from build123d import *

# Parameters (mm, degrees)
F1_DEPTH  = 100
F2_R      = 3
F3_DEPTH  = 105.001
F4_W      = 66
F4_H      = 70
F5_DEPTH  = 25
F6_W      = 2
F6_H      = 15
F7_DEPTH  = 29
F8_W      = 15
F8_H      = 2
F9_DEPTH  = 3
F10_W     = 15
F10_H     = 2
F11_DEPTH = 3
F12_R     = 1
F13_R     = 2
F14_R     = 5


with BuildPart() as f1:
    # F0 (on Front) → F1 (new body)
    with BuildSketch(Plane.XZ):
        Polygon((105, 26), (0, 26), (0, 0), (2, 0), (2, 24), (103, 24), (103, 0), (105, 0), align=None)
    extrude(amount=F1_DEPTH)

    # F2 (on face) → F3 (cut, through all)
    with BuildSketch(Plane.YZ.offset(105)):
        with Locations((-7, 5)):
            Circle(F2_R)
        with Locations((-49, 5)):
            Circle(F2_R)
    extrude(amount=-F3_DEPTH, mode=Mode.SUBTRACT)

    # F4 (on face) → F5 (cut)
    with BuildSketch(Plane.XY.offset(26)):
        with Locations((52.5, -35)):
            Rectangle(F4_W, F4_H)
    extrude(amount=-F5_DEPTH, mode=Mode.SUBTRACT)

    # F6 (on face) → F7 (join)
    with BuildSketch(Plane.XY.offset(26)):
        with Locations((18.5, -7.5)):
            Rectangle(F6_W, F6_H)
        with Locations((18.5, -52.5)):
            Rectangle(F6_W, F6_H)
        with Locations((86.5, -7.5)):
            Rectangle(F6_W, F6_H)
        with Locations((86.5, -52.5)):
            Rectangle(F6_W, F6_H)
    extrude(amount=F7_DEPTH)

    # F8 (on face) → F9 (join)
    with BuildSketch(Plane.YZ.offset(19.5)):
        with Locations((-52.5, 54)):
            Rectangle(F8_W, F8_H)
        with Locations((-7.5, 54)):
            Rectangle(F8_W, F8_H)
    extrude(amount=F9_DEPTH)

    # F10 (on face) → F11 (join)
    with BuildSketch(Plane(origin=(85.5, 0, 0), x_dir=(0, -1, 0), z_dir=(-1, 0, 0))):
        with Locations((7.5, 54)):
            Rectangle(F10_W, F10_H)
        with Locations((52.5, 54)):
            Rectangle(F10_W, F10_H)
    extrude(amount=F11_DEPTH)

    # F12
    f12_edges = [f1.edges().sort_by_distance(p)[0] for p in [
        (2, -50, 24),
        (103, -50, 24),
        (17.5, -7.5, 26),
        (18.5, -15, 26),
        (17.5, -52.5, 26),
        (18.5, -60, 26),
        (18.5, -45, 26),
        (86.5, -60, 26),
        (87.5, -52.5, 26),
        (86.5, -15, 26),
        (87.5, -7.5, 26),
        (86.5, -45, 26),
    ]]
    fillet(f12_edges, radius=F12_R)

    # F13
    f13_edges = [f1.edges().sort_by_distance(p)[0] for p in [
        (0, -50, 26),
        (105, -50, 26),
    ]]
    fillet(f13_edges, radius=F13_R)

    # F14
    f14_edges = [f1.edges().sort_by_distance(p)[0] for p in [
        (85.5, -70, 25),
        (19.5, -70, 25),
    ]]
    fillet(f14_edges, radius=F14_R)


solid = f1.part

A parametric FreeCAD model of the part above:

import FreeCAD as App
import Part
import Sketcher

V = App.Vector


def edges_at(feature, points):
    """Names of the edges that pass closest to the given points."""
    edges = feature.Shape.Edges
    near = lambda p: min(range(len(edges)), key=lambda i: edges[i].distToShape(Part.Vertex(*p))[0])
    return sorted({f"Edge{near(p) + 1}" for p in points})

doc = App.newDocument("Part")
body = doc.addObject("PartDesign::Body", "Body")

sketch1 = body.newObject("Sketcher::SketchObject", "Sketch")
sketch1.AttachmentSupport = (doc.getObject("XZ_Plane"), [""])
sketch1.MapMode = "FlatFace"
sketch1.addGeometry(Part.LineSegment(V(105, 26, 0), V(0, 26, 0)), False)
sketch1.addGeometry(Part.LineSegment(V(0, 26, 0), V(0, 0, 0)), False)
sketch1.addGeometry(Part.LineSegment(V(0, 0, 0), V(2, 0, 0)), False)
sketch1.addGeometry(Part.LineSegment(V(2, 0, 0), V(2, 24, 0)), False)
sketch1.addGeometry(Part.LineSegment(V(2, 24, 0), V(103, 24, 0)), False)
sketch1.addGeometry(Part.LineSegment(V(103, 24, 0), V(103, 0, 0)), False)
sketch1.addGeometry(Part.LineSegment(V(103, 0, 0), V(105, 0, 0)), False)
sketch1.addGeometry(Part.LineSegment(V(105, 0, 0), V(105, 26, 0)), False)
sketch1.addConstraint(Sketcher.Constraint("Coincident", 0, 2, 1, 1))
sketch1.addConstraint(Sketcher.Constraint("Coincident", 1, 2, 2, 1))
sketch1.addConstraint(Sketcher.Constraint("Coincident", 2, 2, 3, 1))
sketch1.addConstraint(Sketcher.Constraint("Coincident", 3, 2, 4, 1))
sketch1.addConstraint(Sketcher.Constraint("Coincident", 4, 2, 5, 1))
sketch1.addConstraint(Sketcher.Constraint("Coincident", 5, 2, 6, 1))
sketch1.addConstraint(Sketcher.Constraint("Coincident", 6, 2, 7, 1))
sketch1.addConstraint(Sketcher.Constraint("Coincident", 7, 2, 0, 1))
sketch1.addConstraint(Sketcher.Constraint("Horizontal", 0))
sketch1.addConstraint(Sketcher.Constraint("Vertical", 1))
sketch1.addConstraint(Sketcher.Constraint("Horizontal", 2))
sketch1.addConstraint(Sketcher.Constraint("Vertical", 3))
sketch1.addConstraint(Sketcher.Constraint("Horizontal", 4))
sketch1.addConstraint(Sketcher.Constraint("Vertical", 5))
sketch1.addConstraint(Sketcher.Constraint("Horizontal", 6))
sketch1.addConstraint(Sketcher.Constraint("Vertical", 7))
sketch1.addConstraint(Sketcher.Constraint("Coincident", 1, 2, -1, 1))
sketch1.addConstraint(Sketcher.Constraint("PointOnObject", 5, 2, -1))
sketch1.addConstraint(Sketcher.Constraint("Equal", 2, 6))
sketch1.addConstraint(Sketcher.Constraint("DistanceX", 0, 2, 0, 1, 105.0))
sketch1.addConstraint(Sketcher.Constraint("DistanceX", 2, 1, 2, 2, 2.0))
sketch1.addConstraint(Sketcher.Constraint("DistanceY", 1, 2, 1, 1, 26.0))
sketch1.addConstraint(Sketcher.Constraint("DistanceY", 3, 1, 3, 2, 24.0))
pad1 = body.newObject("PartDesign::Pad", "Pad")
pad1.Profile = sketch1
pad1.Length = 100

sketch2 = body.newObject("Sketcher::SketchObject", "Sketch001")
sketch2.AttachmentSupport = (doc.getObject("YZ_Plane"), [""])
sketch2.MapMode = "FlatFace"
sketch2.AttachmentOffset = App.Placement(V(0, 0, 105), App.Rotation())
sketch2.addGeometry(Part.Circle(V(-7, 5, 0), V(0, 0, 1), 3), False)
sketch2.addGeometry(Part.Circle(V(-49, 5, 0), V(0, 0, 1), 3), False)
sketch2.addConstraint(Sketcher.Constraint("Equal", 0, 1))
sketch2.addConstraint(Sketcher.Constraint("Horizontal", 0, 3, 1, 3))
sketch2.addConstraint(Sketcher.Constraint("Diameter", 0, 6.0))
sketch2.addConstraint(Sketcher.Constraint("DistanceX", 0, 3, -1, 1, 7.0))
sketch2.addConstraint(Sketcher.Constraint("DistanceY", -1, 1, 0, 3, 5.0))
sketch2.addConstraint(Sketcher.Constraint("DistanceX", 1, 3, -1, 1, 49.0))
pocket1 = body.newObject("PartDesign::Pocket", "Pocket")
pocket1.Profile = sketch2
pocket1.Type = "ThroughAll"

sketch3 = body.newObject("Sketcher::SketchObject", "Sketch002")
sketch3.AttachmentSupport = (doc.getObject("XY_Plane"), [""])
sketch3.MapMode = "FlatFace"
sketch3.AttachmentOffset = App.Placement(V(0, 0, 26), App.Rotation())
sketch3.addGeometry(Part.LineSegment(V(20, 0, 0), V(20, -70, 0)), False)
sketch3.addGeometry(Part.LineSegment(V(20, -70, 0), V(86, -70, 0)), False)
sketch3.addGeometry(Part.LineSegment(V(86, -70, 0), V(86, 0, 0)), False)
sketch3.addGeometry(Part.LineSegment(V(86, 0, 0), V(20, 0, 0)), False)
sketch3.addConstraint(Sketcher.Constraint("Coincident", 0, 2, 1, 1))
sketch3.addConstraint(Sketcher.Constraint("Coincident", 1, 2, 2, 1))
sketch3.addConstraint(Sketcher.Constraint("Coincident", 2, 2, 3, 1))
sketch3.addConstraint(Sketcher.Constraint("Coincident", 3, 2, 0, 1))
sketch3.addConstraint(Sketcher.Constraint("Vertical", 0))
sketch3.addConstraint(Sketcher.Constraint("Horizontal", 1))
sketch3.addConstraint(Sketcher.Constraint("Vertical", 2))
sketch3.addConstraint(Sketcher.Constraint("Horizontal", 3))
sketch3.addConstraint(Sketcher.Constraint("PointOnObject", 2, 2, -1))
sketch3.addConstraint(Sketcher.Constraint("DistanceX", 1, 1, 1, 2, 66.0))
sketch3.addConstraint(Sketcher.Constraint("DistanceY", 0, 2, 0, 1, 70.0))
sketch3.addConstraint(Sketcher.Constraint("DistanceX", -1, 1, 0, 2, 19.5))
pocket2 = body.newObject("PartDesign::Pocket", "Pocket001")
pocket2.Profile = sketch3
pocket2.Length = 25

sketch4 = body.newObject("Sketcher::SketchObject", "Sketch003")
sketch4.AttachmentSupport = (doc.getObject("XY_Plane"), [""])
sketch4.MapMode = "FlatFace"
sketch4.AttachmentOffset = App.Placement(V(0, 0, 26), App.Rotation())
sketch4.addGeometry(Part.LineSegment(V(17.5, 0, 0), V(17.5, -15, 0)), False)
sketch4.addGeometry(Part.LineSegment(V(17.5, -15, 0), V(19.5, -15, 0)), False)
sketch4.addGeometry(Part.LineSegment(V(19.5, -15, 0), V(19.5, 0, 0)), False)
sketch4.addGeometry(Part.LineSegment(V(19.5, 0, 0), V(17.5, 0, 0)), False)
sketch4.addGeometry(Part.LineSegment(V(17.5, -45, 0), V(17.5, -60, 0)), False)
sketch4.addGeometry(Part.LineSegment(V(17.5, -60, 0), V(19.5, -60, 0)), False)
sketch4.addGeometry(Part.LineSegment(V(19.5, -60, 0), V(19.5, -45, 0)), False)
sketch4.addGeometry(Part.LineSegment(V(19.5, -45, 0), V(17.5, -45, 0)), False)
sketch4.addGeometry(Part.LineSegment(V(85.5, 0, 0), V(85.5, -15, 0)), False)
sketch4.addGeometry(Part.LineSegment(V(85.5, -15, 0), V(87.5, -15, 0)), False)
sketch4.addGeometry(Part.LineSegment(V(87.5, -15, 0), V(87.5, 0, 0)), False)
sketch4.addGeometry(Part.LineSegment(V(87.5, 0, 0), V(85.5, 0, 0)), False)
sketch4.addGeometry(Part.LineSegment(V(85.5, -45, 0), V(85.5, -60, 0)), False)
sketch4.addGeometry(Part.LineSegment(V(85.5, -60, 0), V(87.5, -60, 0)), False)
sketch4.addGeometry(Part.LineSegment(V(87.5, -60, 0), V(87.5, -45, 0)), False)
sketch4.addGeometry(Part.LineSegment(V(87.5, -45, 0), V(85.5, -45, 0)), False)
sketch4.addConstraint(Sketcher.Constraint("Coincident", 0, 2, 1, 1))
sketch4.addConstraint(Sketcher.Constraint("Coincident", 1, 2, 2, 1))
sketch4.addConstraint(Sketcher.Constraint("Coincident", 2, 2, 3, 1))
sketch4.addConstraint(Sketcher.Constraint("Coincident", 3, 2, 0, 1))
sketch4.addConstraint(Sketcher.Constraint("Coincident", 4, 2, 5, 1))
sketch4.addConstraint(Sketcher.Constraint("Coincident", 5, 2, 6, 1))
sketch4.addConstraint(Sketcher.Constraint("Coincident", 6, 2, 7, 1))
sketch4.addConstraint(Sketcher.Constraint("Coincident", 7, 2, 4, 1))
sketch4.addConstraint(Sketcher.Constraint("Coincident", 8, 2, 9, 1))
sketch4.addConstraint(Sketcher.Constraint("Coincident", 9, 2, 10, 1))
sketch4.addConstraint(Sketcher.Constraint("Coincident", 10, 2, 11, 1))
sketch4.addConstraint(Sketcher.Constraint("Coincident", 11, 2, 8, 1))
sketch4.addConstraint(Sketcher.Constraint("Coincident", 12, 2, 13, 1))
sketch4.addConstraint(Sketcher.Constraint("Coincident", 13, 2, 14, 1))
sketch4.addConstraint(Sketcher.Constraint("Coincident", 14, 2, 15, 1))
sketch4.addConstraint(Sketcher.Constraint("Coincident", 15, 2, 12, 1))
sketch4.addConstraint(Sketcher.Constraint("Vertical", 0))
sketch4.addConstraint(Sketcher.Constraint("Horizontal", 1))
sketch4.addConstraint(Sketcher.Constraint("Vertical", 2))
sketch4.addConstraint(Sketcher.Constraint("Horizontal", 3))
sketch4.addConstraint(Sketcher.Constraint("Vertical", 4))
sketch4.addConstraint(Sketcher.Constraint("Horizontal", 5))
sketch4.addConstraint(Sketcher.Constraint("Vertical", 6))
sketch4.addConstraint(Sketcher.Constraint("Horizontal", 7))
sketch4.addConstraint(Sketcher.Constraint("Vertical", 8))
sketch4.addConstraint(Sketcher.Constraint("Horizontal", 9))
sketch4.addConstraint(Sketcher.Constraint("Vertical", 10))
sketch4.addConstraint(Sketcher.Constraint("Horizontal", 11))
sketch4.addConstraint(Sketcher.Constraint("Vertical", 12))
sketch4.addConstraint(Sketcher.Constraint("Horizontal", 13))
sketch4.addConstraint(Sketcher.Constraint("Vertical", 14))
sketch4.addConstraint(Sketcher.Constraint("Horizontal", 15))
sketch4.addConstraint(Sketcher.Constraint("PointOnObject", 2, 2, -1))
sketch4.addConstraint(Sketcher.Constraint("PointOnObject", 10, 2, -1))
sketch4.addConstraint(Sketcher.Constraint("Horizontal", 1, 2, 8, 2))
sketch4.addConstraint(Sketcher.Constraint("Horizontal", 5, 2, 12, 2))
sketch4.addConstraint(Sketcher.Constraint("Horizontal", 7, 2, 14, 2))
sketch4.addConstraint(Sketcher.Constraint("Vertical", 3, 2, 4, 2))
sketch4.addConstraint(Sketcher.Constraint("Vertical", 2, 2, 5, 2))
sketch4.addConstraint(Sketcher.Constraint("Vertical", 11, 2, 12, 2))
sketch4.addConstraint(Sketcher.Constraint("Vertical", 10, 2, 13, 2))
sketch4.addConstraint(Sketcher.Constraint("Equal", 7, 9))
sketch4.addConstraint(Sketcher.Constraint("Equal", 2, 4))
sketch4.addConstraint(Sketcher.Constraint("DistanceX", 1, 1, 1, 2, 2.0))
sketch4.addConstraint(Sketcher.Constraint("DistanceY", 0, 2, 0, 1, 15.0))
sketch4.addConstraint(Sketcher.Constraint("DistanceY", 4, 2, -1, 1, 60.0))
sketch4.addConstraint(Sketcher.Constraint("DistanceX", 1, 2, 8, 2, 66.0))
sketch4.addConstraint(Sketcher.Constraint("DistanceX", -1, 1, 0, 2, 17.5))
pad2 = body.newObject("PartDesign::Pad", "Pad001")
pad2.Profile = sketch4
pad2.Length = 29

sketch5 = body.newObject("Sketcher::SketchObject", "Sketch004")
sketch5.AttachmentSupport = (doc.getObject("YZ_Plane"), [""])
sketch5.MapMode = "FlatFace"
sketch5.AttachmentOffset = App.Placement(V(0, 0, 19.5), App.Rotation())
sketch5.addGeometry(Part.LineSegment(V(-60, 55, 0), V(-60, 53, 0)), False)
sketch5.addGeometry(Part.LineSegment(V(-60, 53, 0), V(-45, 53, 0)), False)
sketch5.addGeometry(Part.LineSegment(V(-45, 53, 0), V(-45, 55, 0)), False)
sketch5.addGeometry(Part.LineSegment(V(-45, 55, 0), V(-60, 55, 0)), False)
sketch5.addGeometry(Part.LineSegment(V(-15, 55, 0), V(-15, 53, 0)), False)
sketch5.addGeometry(Part.LineSegment(V(-15, 53, 0), V(0, 53, 0)), False)
sketch5.addGeometry(Part.LineSegment(V(0, 53, 0), V(0, 55, 0)), False)
sketch5.addGeometry(Part.LineSegment(V(0, 55, 0), V(-15, 55, 0)), False)
sketch5.addConstraint(Sketcher.Constraint("Coincident", 0, 2, 1, 1))
sketch5.addConstraint(Sketcher.Constraint("Coincident", 1, 2, 2, 1))
sketch5.addConstraint(Sketcher.Constraint("Coincident", 2, 2, 3, 1))
sketch5.addConstraint(Sketcher.Constraint("Coincident", 3, 2, 0, 1))
sketch5.addConstraint(Sketcher.Constraint("Coincident", 4, 2, 5, 1))
sketch5.addConstraint(Sketcher.Constraint("Coincident", 5, 2, 6, 1))
sketch5.addConstraint(Sketcher.Constraint("Coincident", 6, 2, 7, 1))
sketch5.addConstraint(Sketcher.Constraint("Coincident", 7, 2, 4, 1))
sketch5.addConstraint(Sketcher.Constraint("Vertical", 0))
sketch5.addConstraint(Sketcher.Constraint("Horizontal", 1))
sketch5.addConstraint(Sketcher.Constraint("Vertical", 2))
sketch5.addConstraint(Sketcher.Constraint("Horizontal", 3))
sketch5.addConstraint(Sketcher.Constraint("Vertical", 4))
sketch5.addConstraint(Sketcher.Constraint("Horizontal", 5))
sketch5.addConstraint(Sketcher.Constraint("Vertical", 6))
sketch5.addConstraint(Sketcher.Constraint("Horizontal", 7))
sketch5.addConstraint(Sketcher.Constraint("PointOnObject", 5, 2, -2))
sketch5.addConstraint(Sketcher.Constraint("Horizontal", 1, 2, 4, 2))
sketch5.addConstraint(Sketcher.Constraint("Horizontal", 3, 2, 6, 2))
sketch5.addConstraint(Sketcher.Constraint("Equal", 3, 5))
sketch5.addConstraint(Sketcher.Constraint("DistanceX", 1, 1, 1, 2, 15.0))
sketch5.addConstraint(Sketcher.Constraint("DistanceY", 0, 2, 0, 1, 2.0))
sketch5.addConstraint(Sketcher.Constraint("DistanceX", 0, 2, -1, 1, 60.0))
sketch5.addConstraint(Sketcher.Constraint("DistanceY", -1, 1, 0, 2, 53.0))
pad3 = body.newObject("PartDesign::Pad", "Pad002")
pad3.Profile = sketch5
pad3.Length = 3

sketch6 = body.newObject("Sketcher::SketchObject", "Sketch005")
sketch6.AttachmentSupport = (doc.getObject("YZ_Plane"), [""])
sketch6.MapMode = "FlatFace"
sketch6.AttachmentOffset = App.Placement(V(0, 0, 85.5), App.Rotation())
sketch6.addGeometry(Part.LineSegment(V(0, 55, 0), V(0, 53, 0)), False)
sketch6.addGeometry(Part.LineSegment(V(0, 53, 0), V(-15, 53, 0)), False)
sketch6.addGeometry(Part.LineSegment(V(-15, 53, 0), V(-15, 55, 0)), False)
sketch6.addGeometry(Part.LineSegment(V(-15, 55, 0), V(0, 55, 0)), False)
sketch6.addGeometry(Part.LineSegment(V(-45, 55, 0), V(-45, 53, 0)), False)
sketch6.addGeometry(Part.LineSegment(V(-45, 53, 0), V(-60, 53, 0)), False)
sketch6.addGeometry(Part.LineSegment(V(-60, 53, 0), V(-60, 55, 0)), False)
sketch6.addGeometry(Part.LineSegment(V(-60, 55, 0), V(-45, 55, 0)), False)
sketch6.addConstraint(Sketcher.Constraint("Coincident", 0, 2, 1, 1))
sketch6.addConstraint(Sketcher.Constraint("Coincident", 1, 2, 2, 1))
sketch6.addConstraint(Sketcher.Constraint("Coincident", 2, 2, 3, 1))
sketch6.addConstraint(Sketcher.Constraint("Coincident", 3, 2, 0, 1))
sketch6.addConstraint(Sketcher.Constraint("Coincident", 4, 2, 5, 1))
sketch6.addConstraint(Sketcher.Constraint("Coincident", 5, 2, 6, 1))
sketch6.addConstraint(Sketcher.Constraint("Coincident", 6, 2, 7, 1))
sketch6.addConstraint(Sketcher.Constraint("Coincident", 7, 2, 4, 1))
sketch6.addConstraint(Sketcher.Constraint("Vertical", 0))
sketch6.addConstraint(Sketcher.Constraint("Horizontal", 1))
sketch6.addConstraint(Sketcher.Constraint("Vertical", 2))
sketch6.addConstraint(Sketcher.Constraint("Horizontal", 3))
sketch6.addConstraint(Sketcher.Constraint("Vertical", 4))
sketch6.addConstraint(Sketcher.Constraint("Horizontal", 5))
sketch6.addConstraint(Sketcher.Constraint("Vertical", 6))
sketch6.addConstraint(Sketcher.Constraint("Horizontal", 7))
sketch6.addConstraint(Sketcher.Constraint("PointOnObject", 0, 2, -2))
sketch6.addConstraint(Sketcher.Constraint("Horizontal", 1, 2, 4, 2))
sketch6.addConstraint(Sketcher.Constraint("Horizontal", 3, 2, 6, 2))
sketch6.addConstraint(Sketcher.Constraint("Equal", 3, 5))
sketch6.addConstraint(Sketcher.Constraint("DistanceX", 1, 2, 1, 1, 15.0))
sketch6.addConstraint(Sketcher.Constraint("DistanceY", 0, 2, 0, 1, 2.0))
sketch6.addConstraint(Sketcher.Constraint("DistanceY", -1, 1, 0, 2, 53.0))
sketch6.addConstraint(Sketcher.Constraint("DistanceX", 4, 2, -1, 1, 45.0))
pad4 = body.newObject("PartDesign::Pad", "Pad003")
pad4.Profile = sketch6
pad4.Length = 3
pad4.Reversed = True
doc.recompute()

fillet = body.newObject("PartDesign::Fillet", "Fillet")
fillet.Base = (pad4, edges_at(pad4, [
    (2, -50, 24),
    (103, -50, 24),
    (17.5, -7.5, 26),
    (18.5, -15, 26),
    (17.5, -52.5, 26),
    (18.5, -60, 26),
    (18.5, -45, 26),
    (86.5, -60, 26),
    (87.5, -52.5, 26),
    (86.5, -15, 26),
    (87.5, -7.5, 26),
    (86.5, -45, 26),
]))
fillet.Radius = 1
doc.recompute()

fillet2 = body.newObject("PartDesign::Fillet", "Fillet001")
fillet2.Base = (fillet, edges_at(fillet, [(0, -50, 26), (105, -50, 26)]))
fillet2.Radius = 2
doc.recompute()

fillet3 = body.newObject("PartDesign::Fillet", "Fillet002")
fillet3.Base = (fillet2, edges_at(fillet2, [(85.5, -70, 25), (19.5, -70, 25)]))
fillet3.Radius = 5

doc.recompute()
